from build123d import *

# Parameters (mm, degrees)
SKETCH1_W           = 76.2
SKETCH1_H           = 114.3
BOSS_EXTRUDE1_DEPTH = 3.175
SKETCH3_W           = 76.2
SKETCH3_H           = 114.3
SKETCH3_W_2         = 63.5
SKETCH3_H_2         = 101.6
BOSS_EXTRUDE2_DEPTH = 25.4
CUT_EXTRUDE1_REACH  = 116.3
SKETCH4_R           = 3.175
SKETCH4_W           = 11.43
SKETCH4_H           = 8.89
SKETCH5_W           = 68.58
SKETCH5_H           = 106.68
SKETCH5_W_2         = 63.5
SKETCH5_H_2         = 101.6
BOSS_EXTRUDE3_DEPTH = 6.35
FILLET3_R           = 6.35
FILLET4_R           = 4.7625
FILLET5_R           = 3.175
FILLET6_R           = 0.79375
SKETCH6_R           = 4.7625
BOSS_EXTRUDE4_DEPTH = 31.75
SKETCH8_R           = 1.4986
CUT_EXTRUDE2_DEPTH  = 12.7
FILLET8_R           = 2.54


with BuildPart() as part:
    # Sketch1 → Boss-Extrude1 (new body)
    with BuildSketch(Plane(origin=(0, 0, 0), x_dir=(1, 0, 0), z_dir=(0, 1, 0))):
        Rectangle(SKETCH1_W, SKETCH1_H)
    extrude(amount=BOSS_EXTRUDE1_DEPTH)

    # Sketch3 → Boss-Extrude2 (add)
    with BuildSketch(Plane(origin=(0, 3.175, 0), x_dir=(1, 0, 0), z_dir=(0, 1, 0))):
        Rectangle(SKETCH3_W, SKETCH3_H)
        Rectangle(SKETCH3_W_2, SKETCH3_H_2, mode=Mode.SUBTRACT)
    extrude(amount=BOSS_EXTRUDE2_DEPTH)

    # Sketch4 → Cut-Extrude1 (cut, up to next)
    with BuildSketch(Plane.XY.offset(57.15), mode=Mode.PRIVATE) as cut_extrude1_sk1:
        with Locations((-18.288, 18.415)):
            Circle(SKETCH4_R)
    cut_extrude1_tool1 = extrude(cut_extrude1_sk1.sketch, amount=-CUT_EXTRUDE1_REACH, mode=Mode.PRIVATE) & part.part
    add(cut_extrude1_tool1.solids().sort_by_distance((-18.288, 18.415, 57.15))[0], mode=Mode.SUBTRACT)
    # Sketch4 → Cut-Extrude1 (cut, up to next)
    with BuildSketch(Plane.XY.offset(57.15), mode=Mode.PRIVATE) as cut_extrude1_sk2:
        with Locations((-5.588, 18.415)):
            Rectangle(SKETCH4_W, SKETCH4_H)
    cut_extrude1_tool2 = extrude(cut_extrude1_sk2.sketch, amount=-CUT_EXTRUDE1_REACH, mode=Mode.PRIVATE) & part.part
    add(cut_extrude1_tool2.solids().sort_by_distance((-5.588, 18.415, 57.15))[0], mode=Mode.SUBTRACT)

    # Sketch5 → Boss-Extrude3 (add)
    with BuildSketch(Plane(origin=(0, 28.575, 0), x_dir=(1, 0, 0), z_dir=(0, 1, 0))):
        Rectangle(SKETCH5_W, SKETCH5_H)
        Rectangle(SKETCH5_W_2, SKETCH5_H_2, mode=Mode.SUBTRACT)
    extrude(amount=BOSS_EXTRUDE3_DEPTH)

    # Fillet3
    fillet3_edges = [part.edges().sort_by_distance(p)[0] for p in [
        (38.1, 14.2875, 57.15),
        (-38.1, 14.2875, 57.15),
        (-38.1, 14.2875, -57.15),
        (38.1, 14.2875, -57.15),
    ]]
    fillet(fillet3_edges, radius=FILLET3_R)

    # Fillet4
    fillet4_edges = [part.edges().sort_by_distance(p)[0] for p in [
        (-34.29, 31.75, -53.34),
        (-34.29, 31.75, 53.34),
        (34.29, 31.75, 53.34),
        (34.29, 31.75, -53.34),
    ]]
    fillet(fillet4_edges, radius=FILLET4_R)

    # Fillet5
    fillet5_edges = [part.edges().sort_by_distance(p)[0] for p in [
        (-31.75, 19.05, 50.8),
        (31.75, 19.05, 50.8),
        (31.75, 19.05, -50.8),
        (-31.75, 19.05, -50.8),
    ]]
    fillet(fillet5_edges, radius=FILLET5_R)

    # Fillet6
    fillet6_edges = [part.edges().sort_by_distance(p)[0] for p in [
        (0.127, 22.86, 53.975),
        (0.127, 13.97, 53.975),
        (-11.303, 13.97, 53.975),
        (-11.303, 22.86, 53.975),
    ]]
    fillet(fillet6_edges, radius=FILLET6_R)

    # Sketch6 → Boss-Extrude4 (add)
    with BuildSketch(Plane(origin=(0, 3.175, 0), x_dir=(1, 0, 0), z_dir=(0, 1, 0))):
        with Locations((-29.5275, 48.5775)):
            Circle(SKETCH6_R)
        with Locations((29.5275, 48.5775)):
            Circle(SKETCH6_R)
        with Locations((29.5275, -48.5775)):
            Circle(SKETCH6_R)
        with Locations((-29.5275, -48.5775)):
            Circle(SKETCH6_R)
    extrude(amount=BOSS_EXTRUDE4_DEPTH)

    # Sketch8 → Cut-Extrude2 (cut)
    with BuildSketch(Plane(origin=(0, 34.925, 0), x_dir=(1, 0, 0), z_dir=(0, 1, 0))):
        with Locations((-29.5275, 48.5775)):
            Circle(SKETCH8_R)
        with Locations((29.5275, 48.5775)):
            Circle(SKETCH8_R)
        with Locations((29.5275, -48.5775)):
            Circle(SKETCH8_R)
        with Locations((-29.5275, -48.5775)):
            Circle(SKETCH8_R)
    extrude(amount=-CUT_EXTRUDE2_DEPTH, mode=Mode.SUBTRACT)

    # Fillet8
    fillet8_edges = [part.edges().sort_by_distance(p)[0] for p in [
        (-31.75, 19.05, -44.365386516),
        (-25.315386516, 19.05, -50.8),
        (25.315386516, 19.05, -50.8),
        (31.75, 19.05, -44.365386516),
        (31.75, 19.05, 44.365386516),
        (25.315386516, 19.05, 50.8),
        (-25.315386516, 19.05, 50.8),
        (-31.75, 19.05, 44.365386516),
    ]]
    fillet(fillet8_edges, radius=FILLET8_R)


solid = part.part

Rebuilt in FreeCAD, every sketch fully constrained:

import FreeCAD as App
import Part
import Sketcher
from FreeCAD import Vector
Q = App.Units.Quantity


def edges_at(feature, points):
    """Names of the edges that pass closest to the given points."""
    edges = feature.Shape.Edges
    near = lambda p: min(range(len(edges)), key=lambda i: edges[i].distToShape(Part.Vertex(*p))[0])
    return sorted({f"Edge{near(p) + 1}" for p in points})

doc = App.newDocument("Part")
body = doc.addObject("PartDesign::Body", "Body")

sketch1 = body.newObject("Sketcher::SketchObject", "Sketch")
sketch1.AttachmentSupport = (doc.getObject("XZ_Plane"), [""])
sketch1.MapMode = "FlatFace"
sketch1.addGeometry([
    Part.LineSegment(Vector(-38.1, -57.15, 0), Vector(-38.1, 57.15, 0)),
    Part.LineSegment(Vector(-38.1, 57.15, 0), Vector(38.1, 57.15, 0)),
    Part.LineSegment(Vector(38.1, 57.15, 0), Vector(38.1, -57.15, 0)),
    Part.LineSegment(Vector(38.1, -57.15, 0), Vector(-38.1, -57.15, 0)),
], False)
sketch1.addConstraint([
    Sketcher.Constraint("Coincident", 0, 2, 1, 1),
    Sketcher.Constraint("Coincident", 1, 2, 2, 1),
    Sketcher.Constraint("Coincident", 2, 2, 3, 1),
    Sketcher.Constraint("Coincident", 3, 2, 0, 1),
    Sketcher.Constraint("Vertical", 0),
    Sketcher.Constraint("Horizontal", 1),
    Sketcher.Constraint("Vertical", 2),
    Sketcher.Constraint("Horizontal", 3),
    Sketcher.Constraint("Symmetric", 0, 2, 2, 2, -1, 1),
    Sketcher.Constraint("DistanceX", 1, 1, 1, 2, Q("3 in")),
    Sketcher.Constraint("DistanceY", 0, 1, 0, 2, Q("4.5 in")),
])
pad1 = body.newObject("PartDesign::Pad", "Pad")
pad1.Profile = sketch1
pad1.Length = Q("0.125 in")
pad1.Reversed = True

sketch2 = body.newObject("Sketcher::SketchObject", "Sketch001")
sketch2.AttachmentSupport = (doc.getObject("XZ_Plane"), [""])
sketch2.MapMode = "FlatFace"
sketch2.AttachmentOffset = App.Placement(Vector(0, 0, -0.125 * 25.4), App.Rotation())
sketch2.addGeometry([
    Part.LineSegment(Vector(-38.1, -57.15, 0), Vector(-38.1, 57.15, 0)),
    Part.LineSegment(Vector(-38.1, 57.15, 0), Vector(38.1, 57.15, 0)),
    Part.LineSegment(Vector(38.1, 57.15, 0), Vector(38.1, -57.15, 0)),
    Part.LineSegment(Vector(38.1, -57.15, 0), Vector(-38.1, -57.15, 0)),
    Part.LineSegment(Vector(31.75, 50.8, 0), Vector(-31.75, 50.8, 0)),
    Part.LineSegment(Vector(-31.75, 50.8, 0), Vector(-31.75, -50.8, 0)),
    Part.LineSegment(Vector(-31.75, -50.8, 0), Vector(31.75, -50.8, 0)),
    Part.LineSegment(Vector(31.75, -50.8, 0), Vector(31.75, 50.8, 0)),
], False)
sketch2.addConstraint([
    Sketcher.Constraint("Coincident", 0, 2, 1, 1),
    Sketcher.Constraint("Coincident", 1, 2, 2, 1),
    Sketcher.Constraint("Coincident", 2, 2, 3, 1),
    Sketcher.Constraint("Coincident", 3, 2, 0, 1),
    Sketcher.Constraint("Coincident", 4, 2, 5, 1),
    Sketcher.Constraint("Coincident", 5, 2, 6, 1),
    Sketcher.Constraint("Coincident", 6, 2, 7, 1),
    Sketcher.Constraint("Coincident", 7, 2, 4, 1),
    Sketcher.Constraint("Vertical", 0),
    Sketcher.Constraint("Horizontal", 1),
    Sketcher.Constraint("Vertical", 2),
    Sketcher.Constraint("Horizontal", 3),
    Sketcher.Constraint("Horizontal", 4),
    Sketcher.Constraint("Vertical", 5),
    Sketcher.Constraint("Horizontal", 6),
    Sketcher.Constraint("Vertical", 7),
    Sketcher.Constraint("Symmetric", 0, 2, 2, 2, -1, 1),
    Sketcher.Constraint("Symmetric", 4, 2, 6, 2, -1, 1),
    Sketcher.Constraint("DistanceX", 1, 1, 1, 2, Q("3 in")),
    Sketcher.Constraint("DistanceY", 5, 2, 5, 1, Q("4 in")),
    Sketcher.Constraint("DistanceX", 4, 2, 4, 1, Q("2.5 in")),
    Sketcher.Constraint("DistanceY", 0, 1, 0, 2, Q("4.5 in")),
])
pad2 = body.newObject("PartDesign::Pad", "Pad001")
pad2.Profile = sketch2
pad2.Length = Q("1 in")
pad2.Reversed = True

sketch3 = body.newObject("Sketcher::SketchObject", "Sketch002")
sketch3.AttachmentSupport = (doc.getObject("XY_Plane"), [""])
sketch3.MapMode = "FlatFace"
sketch3.AttachmentOffset = App.Placement(Vector(0, 0, 2.25 * 25.4), App.Rotation())
sketch3.addGeometry(Part.Circle(Vector(-18.288, 18.415, 0), Vector(0, 0, 1), 3.175), False)
sketch3.addConstraint([
    Sketcher.Constraint("Diameter", 0, Q("0.25 in")),
    Sketcher.Constraint("DistanceX", 0, 3, -1, 1, Q("0.72 in")),
    Sketcher.Constraint("DistanceY", -1, 1, 0, 3, Q("0.725 in")),
])
pocket1 = body.newObject("PartDesign::Pocket", "Pocket")
pocket1.Profile = sketch3
pocket1.Type = "UpToFirst"

sketch4 = body.newObject("Sketcher::SketchObject", "Sketch003")
sketch4.AttachmentSupport = (doc.getObject("XY_Plane"), [""])
sketch4.MapMode = "FlatFace"
sketch4.AttachmentOffset = App.Placement(Vector(0, 0, 2.25 * 25.4), App.Rotation())
sketch4.addGeometry([
    Part.LineSegment(Vector(-11.303, 22.86, 0), Vector(-11.303, 13.97, 0)),
    Part.LineSegment(Vector(-11.303, 13.97, 0), Vector(0.127, 13.97, 0)),
    Part.LineSegment(Vector(0.127, 13.97, 0), Vector(0.127, 22.86, 0)),
    Part.LineSegment(Vector(0.127, 22.86, 0), Vector(-11.303, 22.86, 0)),
], False)
sketch4.addConstraint([
    Sketcher.Constraint("Coincident", 0, 2, 1, 1),
    Sketcher.Constraint("Coincident", 1, 2, 2, 1),
    Sketcher.Constraint("Coincident", 2, 2, 3, 1),
    Sketcher.Constraint("Coincident", 3, 2, 0, 1),
    Sketcher.Constraint("Vertical", 0),
    Sketcher.Constraint("Horizontal", 1),
    Sketcher.Constraint("Vertical", 2),
    Sketcher.Constraint("Horizontal", 3),
    Sketcher.Constraint("DistanceX", 1, 1, 1, 2, Q("0.45 in")),
    Sketcher.Constraint("DistanceY", 0, 2, 0, 1, Q("0.35 in")),
    Sketcher.Constraint("DistanceY", -1, 1, 2, 2, Q("0.9 in")),
    Sketcher.Constraint("DistanceX", 0, 2, -1, 1, Q("0.445 in")),
])
pocket2 = body.newObject("PartDesign::Pocket", "Pocket001")
pocket2.Profile = sketch4
pocket2.Type = "UpToFirst"

sketch5 = body.newObject("Sketcher::SketchObject", "Sketch004")
sketch5.AttachmentSupport = (doc.getObject("XZ_Plane"), [""])
sketch5.MapMode = "FlatFace"
sketch5.AttachmentOffset = App.Placement(Vector(0, 0, -1.125 * 25.4), App.Rotation())
sketch5.addGeometry([
    Part.LineSegment(Vector(-34.29, -53.34, 0), Vector(-34.29, 53.34, 0)),
    Part.LineSegment(Vector(-34.29, 53.34, 0), Vector(34.29, 53.34, 0)),
    Part.LineSegment(Vector(34.29, 53.34, 0), Vector(34.29, -53.34, 0)),
    Part.LineSegment(Vector(34.29, -53.34, 0), Vector(-34.29, -53.34, 0)),
    Part.LineSegment(Vector(31.75, 50.8, 0), Vector(-31.75, 50.8, 0)),
    Part.LineSegment(Vector(-31.75, 50.8, 0), Vector(-31.75, -50.8, 0)),
    Part.LineSegment(Vector(-31.75, -50.8, 0), Vector(31.75, -50.8, 0)),
    Part.LineSegment(Vector(31.75, -50.8, 0), Vector(31.75, 50.8, 0)),
], False)
sketch5.addConstraint([
    Sketcher.Constraint("Coincident", 0, 2, 1, 1),
    Sketcher.Constraint("Coincident", 1, 2, 2, 1),
    Sketcher.Constraint("Coincident", 2, 2, 3, 1),
    Sketcher.Constraint("Coincident", 3, 2, 0, 1),
    Sketcher.Constraint("Coincident", 4, 2, 5, 1),
    Sketcher.Constraint("Coincident", 5, 2, 6, 1),
    Sketcher.Constraint("Coincident", 6, 2, 7, 1),
    Sketcher.Constraint("Coincident", 7, 2, 4, 1),
    Sketcher.Constraint("Vertical", 0),
    Sketcher.Constraint("Horizontal", 1),
    Sketcher.Constraint("Vertical", 2),
    Sketcher.Constraint("Horizontal", 3),
    Sketcher.Constraint("Horizontal", 4),
    Sketcher.Constraint("Vertical", 5),
    Sketcher.Constraint("Horizontal", 6),
    Sketcher.Constraint("Vertical", 7),
    Sketcher.Constraint("Symmetric", 0, 2, 2, 2, -1, 1),
    Sketcher.Constraint("Symmetric", 4, 2, 6, 2, -1, 1),
    Sketcher.Constraint("DistanceY", 5, 2, 5, 1, Q("4 in")),
    Sketcher.Constraint("DistanceX", 1, 1, 1, 2, Q("2.7 in")),
    Sketcher.Constraint("DistanceX", 4, 2, 4, 1, Q("2.5 in")),
    Sketcher.Constraint("DistanceY", 0, 1, 0, 2, Q("4.2 in")),
])
pad3 = body.newObject("PartDesign::Pad", "Pad002")
pad3.Profile = sketch5
pad3.Length = Q("0.25 in")
pad3.Reversed = True
doc.recompute()

fillet = body.newObject("PartDesign::Fillet", "Fillet")
fillet.Base = (pad3, edges_at(pad3, [
    (38.1, 14.287, 57.15),
    (-38.1, 14.287, 57.15),
    (-38.1, 14.287, -57.15),
    (38.1, 14.287, -57.15),
]))
fillet.Radius = Q("0.25 in")
doc.recompute()

fillet2 = body.newObject("PartDesign::Fillet", "Fillet001")
fillet2.Base = (fillet, edges_at(fillet, [
    (-34.29, 31.75, -53.34),
    (-34.29, 31.75, 53.34),
    (34.29, 31.75, 53.34),
    (34.29, 31.75, -53.34),
]))
fillet2.Radius = Q("0.1875 in")
doc.recompute()

fillet3 = body.newObject("PartDesign::Fillet", "Fillet002")
fillet3.Base = (fillet2, edges_at(fillet2, [
    (-31.75, 19.05, 50.8),
    (31.75, 19.05, 50.8),
    (31.75, 19.05, -50.8),
    (-31.75, 19.05, -50.8),
]))
fillet3.Radius = Q("0.125 in")
doc.recompute()

fillet4 = body.newObject("PartDesign::Fillet", "Fillet003")
fillet4.Base = (fillet3, edges_at(fillet3, [
    (0.127, 22.86, 53.975),
    (0.127, 13.97, 53.975),
    (-11.303, 13.97, 53.975),
    (-11.303, 22.86, 53.975),
]))
fillet4.Radius = Q("0.03125 in")

sketch6 = body.newObject("Sketcher::SketchObject", "Sketch005")
sketch6.AttachmentSupport = (doc.getObject("XZ_Plane"), [""])
sketch6.MapMode = "FlatFace"
sketch6.AttachmentOffset = App.Placement(Vector(0, 0, -0.125 * 25.4), App.Rotation())
sketch6.addGeometry([
    Part.Circle(Vector(-29.5275, -48.5775, 0), Vector(0, 0, 1), 4.7625),
    Part.Circle(Vector(29.5275, -48.5775, 0), Vector(0, 0, 1), 4.7625),
    Part.Circle(Vector(29.5275, 48.5775, 0), Vector(0, 0, 1), 4.7625),
    Part.Circle(Vector(-29.5275, 48.5775, 0), Vector(0, 0, 1), 4.7625),
], False)
sketch6.addConstraint([
    Sketcher.Constraint("Equal", 0, 1),
    Sketcher.Constraint("Equal", 1, 2),
    Sketcher.Constraint("Equal", 2, 3),
    Sketcher.Constraint("Symmetric", 0, 3, 2, 3, -1, 1),
    Sketcher.Constraint("Symmetric", 1, 3, 3, 3, -1, 1),
    Sketcher.Constraint("Symmetric", 0, 3, 1, 3, -2),
    Sketcher.Constraint("Diameter", 0, Q("0.375 in")),
    Sketcher.Constraint("DistanceX", 0, 3, 1, 3, Q("2.325 in")),
    Sketcher.Constraint("DistanceY", 1, 3, 2, 3, Q("3.825 in")),
])
pad4 = body.newObject("PartDesign::Pad", "Pad003")
pad4.Profile = sketch6
pad4.Length = Q("1.25 in")
pad4.Reversed = True

sketch7 = body.newObject("Sketcher::SketchObject", "Sketch006")
sketch7.AttachmentSupport = (doc.getObject("XZ_Plane"), [""])
sketch7.MapMode = "FlatFace"
sketch7.AttachmentOffset = App.Placement(Vector(0, 0, -1.375 * 25.4), App.Rotation())
sketch7.addGeometry([
    Part.Circle(Vector(-29.5275, -48.5775, 0), Vector(0, 0, 1), 1.4986),
    Part.Circle(Vector(29.5275, -48.5775, 0), Vector(0, 0, 1), 1.4986),
    Part.Circle(Vector(29.5275, 48.5775, 0), Vector(0, 0, 1), 1.4986),
    Part.Circle(Vector(-29.5275, 48.5775, 0), Vector(0, 0, 1), 1.4986),
], False)
sketch7.addConstraint([
    Sketcher.Constraint("Equal", 0, 1),
    Sketcher.Constraint("Equal", 1, 2),
    Sketcher.Constraint("Equal", 2, 3),
    Sketcher.Constraint("Symmetric", 0, 3, 2, 3, -1, 1),
    Sketcher.Constraint("Symmetric", 1, 3, 3, 3, -1, 1),
    Sketcher.Constraint("Symmetric", 0, 3, 1, 3, -2),
    Sketcher.Constraint("Diameter", 0, Q("0.118 in")),
    Sketcher.Constraint("DistanceX", 0, 3, 1, 3, Q("2.325 in")),
    Sketcher.Constraint("DistanceY", 1, 3, 2, 3, Q("3.825 in")),
])
pocket3 = body.newObject("PartDesign::Pocket", "Pocket002")
pocket3.Profile = sketch7
pocket3.Length = Q("0.5 in")
pocket3.Reversed = True
doc.recompute()

fillet5 = body.newObject("PartDesign::Fillet", "Fillet004")
fillet5.Base = (pocket3, edges_at(pocket3, [
    (-31.75, 19.05, -44.365),
    (-25.315, 19.05, -50.8),
    (25.315, 19.05, -50.8),
    (31.75, 19.05, -44.365),
    (31.75, 19.05, 44.365),
    (25.315, 19.05, 50.8),
    (-25.315, 19.05, 50.8),
    (-31.75, 19.05, 44.365),
]))
fillet5.Radius = Q("0.1 in")

doc.recompute()
